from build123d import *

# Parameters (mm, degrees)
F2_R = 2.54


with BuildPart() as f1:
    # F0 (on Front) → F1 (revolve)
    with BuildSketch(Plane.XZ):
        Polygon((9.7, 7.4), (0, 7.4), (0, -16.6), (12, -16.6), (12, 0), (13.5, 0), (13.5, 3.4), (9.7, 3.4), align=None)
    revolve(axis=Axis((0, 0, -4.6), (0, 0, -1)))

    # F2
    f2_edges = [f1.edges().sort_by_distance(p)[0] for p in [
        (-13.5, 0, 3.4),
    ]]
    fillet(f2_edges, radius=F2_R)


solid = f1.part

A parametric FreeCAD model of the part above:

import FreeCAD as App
import Part
import Sketcher
from FreeCAD import Vector
Q = App.Units.Quantity


def edges_at(feature, points):
    """Names of the edges that pass closest to the given points."""
    edges = feature.Shape.Edges
    near = lambda p: min(range(len(edges)), key=lambda i: edges[i].distToShape(Part.Vertex(*p))[0])
    return sorted({f"Edge{near(p) + 1}" for p in points})


def add_polygon(sketch, points):
    """Adds a closed chain of lines whose ends are joined by coincident constraints."""
    first, n = sketch.GeometryCount, len(points)
    for a, b in zip(points, points[1:] + points[:1]):
        sketch.addGeometry(Part.LineSegment(App.Vector(*a, 0), App.Vector(*b, 0)), False)
    for i in range(n):
        sketch.addConstraint(Sketcher.Constraint("Coincident", first + i, 2, first + (i + 1) % n, 1))

doc = App.newDocument("Part")
body = doc.addObject("PartDesign::Body", "Body")

# Sketch on XZ plane
sketch1 = doc.addObject("Sketcher::SketchObject", "Sketch")
body.addObject(sketch1)
sketch1.AttachmentSupport = (doc.XZ_Plane, [""])
sketch1.MapMode = "FlatFace"
add_polygon(sketch1, [(9.7, 7.4), (0, 7.4), (0, -16.6), (12, -16.6), (12, 0), (13.5, 0), (13.5, 3.4), (9.7, 3.4)])  # lines 0-7
sketch1.addConstraint([
    Sketcher.Constraint("Horizontal", 0),
    Sketcher.Constraint("Vertical", 1),
    Sketcher.Constraint("Horizontal", 2),
    Sketcher.Constraint("Vertical", 3),
    Sketcher.Constraint("Horizontal", 4),
    Sketcher.Constraint("Vertical", 5),
    Sketcher.Constraint("Horizontal", 6),
    Sketcher.Constraint("Vertical", 7),
    Sketcher.Constraint("PointOnObject", 0, 2, -2),
    Sketcher.Constraint("PointOnObject", 3, 2, -1),
    Sketcher.Constraint("DistanceX", 2, 1, 2, 2, Q("12 mm")),
    Sketcher.Constraint("DistanceY", 1, 2, 1, 1, Q("24 mm")),
    Sketcher.Constraint("DistanceY", 7, 1, 7, 2, Q("4 mm")),
    Sketcher.Constraint("DistanceX", 0, 2, 0, 1, Q("9.7 mm")),
    Sketcher.Constraint("DistanceX", 4, 1, 4, 2, Q("1.5 mm")),
    Sketcher.Constraint("DistanceY", 3, 1, 3, 2, Q("16.6 mm")),
])
revolution = doc.addObject("PartDesign::Revolution", "Revolution")
body.addObject(revolution)
revolution.Profile = sketch1
revolution.ReferenceAxis = (sketch1, ["V_Axis"])
revolution.Angle = 360
doc.recompute()

fillet = doc.addObject("PartDesign::Fillet", "Fillet")
body.addObject(fillet)
fillet.Base = (revolution, edges_at(revolution, [(-13.5, 0, 3.4)]))
fillet.Radius = 2.54

doc.recompute()
